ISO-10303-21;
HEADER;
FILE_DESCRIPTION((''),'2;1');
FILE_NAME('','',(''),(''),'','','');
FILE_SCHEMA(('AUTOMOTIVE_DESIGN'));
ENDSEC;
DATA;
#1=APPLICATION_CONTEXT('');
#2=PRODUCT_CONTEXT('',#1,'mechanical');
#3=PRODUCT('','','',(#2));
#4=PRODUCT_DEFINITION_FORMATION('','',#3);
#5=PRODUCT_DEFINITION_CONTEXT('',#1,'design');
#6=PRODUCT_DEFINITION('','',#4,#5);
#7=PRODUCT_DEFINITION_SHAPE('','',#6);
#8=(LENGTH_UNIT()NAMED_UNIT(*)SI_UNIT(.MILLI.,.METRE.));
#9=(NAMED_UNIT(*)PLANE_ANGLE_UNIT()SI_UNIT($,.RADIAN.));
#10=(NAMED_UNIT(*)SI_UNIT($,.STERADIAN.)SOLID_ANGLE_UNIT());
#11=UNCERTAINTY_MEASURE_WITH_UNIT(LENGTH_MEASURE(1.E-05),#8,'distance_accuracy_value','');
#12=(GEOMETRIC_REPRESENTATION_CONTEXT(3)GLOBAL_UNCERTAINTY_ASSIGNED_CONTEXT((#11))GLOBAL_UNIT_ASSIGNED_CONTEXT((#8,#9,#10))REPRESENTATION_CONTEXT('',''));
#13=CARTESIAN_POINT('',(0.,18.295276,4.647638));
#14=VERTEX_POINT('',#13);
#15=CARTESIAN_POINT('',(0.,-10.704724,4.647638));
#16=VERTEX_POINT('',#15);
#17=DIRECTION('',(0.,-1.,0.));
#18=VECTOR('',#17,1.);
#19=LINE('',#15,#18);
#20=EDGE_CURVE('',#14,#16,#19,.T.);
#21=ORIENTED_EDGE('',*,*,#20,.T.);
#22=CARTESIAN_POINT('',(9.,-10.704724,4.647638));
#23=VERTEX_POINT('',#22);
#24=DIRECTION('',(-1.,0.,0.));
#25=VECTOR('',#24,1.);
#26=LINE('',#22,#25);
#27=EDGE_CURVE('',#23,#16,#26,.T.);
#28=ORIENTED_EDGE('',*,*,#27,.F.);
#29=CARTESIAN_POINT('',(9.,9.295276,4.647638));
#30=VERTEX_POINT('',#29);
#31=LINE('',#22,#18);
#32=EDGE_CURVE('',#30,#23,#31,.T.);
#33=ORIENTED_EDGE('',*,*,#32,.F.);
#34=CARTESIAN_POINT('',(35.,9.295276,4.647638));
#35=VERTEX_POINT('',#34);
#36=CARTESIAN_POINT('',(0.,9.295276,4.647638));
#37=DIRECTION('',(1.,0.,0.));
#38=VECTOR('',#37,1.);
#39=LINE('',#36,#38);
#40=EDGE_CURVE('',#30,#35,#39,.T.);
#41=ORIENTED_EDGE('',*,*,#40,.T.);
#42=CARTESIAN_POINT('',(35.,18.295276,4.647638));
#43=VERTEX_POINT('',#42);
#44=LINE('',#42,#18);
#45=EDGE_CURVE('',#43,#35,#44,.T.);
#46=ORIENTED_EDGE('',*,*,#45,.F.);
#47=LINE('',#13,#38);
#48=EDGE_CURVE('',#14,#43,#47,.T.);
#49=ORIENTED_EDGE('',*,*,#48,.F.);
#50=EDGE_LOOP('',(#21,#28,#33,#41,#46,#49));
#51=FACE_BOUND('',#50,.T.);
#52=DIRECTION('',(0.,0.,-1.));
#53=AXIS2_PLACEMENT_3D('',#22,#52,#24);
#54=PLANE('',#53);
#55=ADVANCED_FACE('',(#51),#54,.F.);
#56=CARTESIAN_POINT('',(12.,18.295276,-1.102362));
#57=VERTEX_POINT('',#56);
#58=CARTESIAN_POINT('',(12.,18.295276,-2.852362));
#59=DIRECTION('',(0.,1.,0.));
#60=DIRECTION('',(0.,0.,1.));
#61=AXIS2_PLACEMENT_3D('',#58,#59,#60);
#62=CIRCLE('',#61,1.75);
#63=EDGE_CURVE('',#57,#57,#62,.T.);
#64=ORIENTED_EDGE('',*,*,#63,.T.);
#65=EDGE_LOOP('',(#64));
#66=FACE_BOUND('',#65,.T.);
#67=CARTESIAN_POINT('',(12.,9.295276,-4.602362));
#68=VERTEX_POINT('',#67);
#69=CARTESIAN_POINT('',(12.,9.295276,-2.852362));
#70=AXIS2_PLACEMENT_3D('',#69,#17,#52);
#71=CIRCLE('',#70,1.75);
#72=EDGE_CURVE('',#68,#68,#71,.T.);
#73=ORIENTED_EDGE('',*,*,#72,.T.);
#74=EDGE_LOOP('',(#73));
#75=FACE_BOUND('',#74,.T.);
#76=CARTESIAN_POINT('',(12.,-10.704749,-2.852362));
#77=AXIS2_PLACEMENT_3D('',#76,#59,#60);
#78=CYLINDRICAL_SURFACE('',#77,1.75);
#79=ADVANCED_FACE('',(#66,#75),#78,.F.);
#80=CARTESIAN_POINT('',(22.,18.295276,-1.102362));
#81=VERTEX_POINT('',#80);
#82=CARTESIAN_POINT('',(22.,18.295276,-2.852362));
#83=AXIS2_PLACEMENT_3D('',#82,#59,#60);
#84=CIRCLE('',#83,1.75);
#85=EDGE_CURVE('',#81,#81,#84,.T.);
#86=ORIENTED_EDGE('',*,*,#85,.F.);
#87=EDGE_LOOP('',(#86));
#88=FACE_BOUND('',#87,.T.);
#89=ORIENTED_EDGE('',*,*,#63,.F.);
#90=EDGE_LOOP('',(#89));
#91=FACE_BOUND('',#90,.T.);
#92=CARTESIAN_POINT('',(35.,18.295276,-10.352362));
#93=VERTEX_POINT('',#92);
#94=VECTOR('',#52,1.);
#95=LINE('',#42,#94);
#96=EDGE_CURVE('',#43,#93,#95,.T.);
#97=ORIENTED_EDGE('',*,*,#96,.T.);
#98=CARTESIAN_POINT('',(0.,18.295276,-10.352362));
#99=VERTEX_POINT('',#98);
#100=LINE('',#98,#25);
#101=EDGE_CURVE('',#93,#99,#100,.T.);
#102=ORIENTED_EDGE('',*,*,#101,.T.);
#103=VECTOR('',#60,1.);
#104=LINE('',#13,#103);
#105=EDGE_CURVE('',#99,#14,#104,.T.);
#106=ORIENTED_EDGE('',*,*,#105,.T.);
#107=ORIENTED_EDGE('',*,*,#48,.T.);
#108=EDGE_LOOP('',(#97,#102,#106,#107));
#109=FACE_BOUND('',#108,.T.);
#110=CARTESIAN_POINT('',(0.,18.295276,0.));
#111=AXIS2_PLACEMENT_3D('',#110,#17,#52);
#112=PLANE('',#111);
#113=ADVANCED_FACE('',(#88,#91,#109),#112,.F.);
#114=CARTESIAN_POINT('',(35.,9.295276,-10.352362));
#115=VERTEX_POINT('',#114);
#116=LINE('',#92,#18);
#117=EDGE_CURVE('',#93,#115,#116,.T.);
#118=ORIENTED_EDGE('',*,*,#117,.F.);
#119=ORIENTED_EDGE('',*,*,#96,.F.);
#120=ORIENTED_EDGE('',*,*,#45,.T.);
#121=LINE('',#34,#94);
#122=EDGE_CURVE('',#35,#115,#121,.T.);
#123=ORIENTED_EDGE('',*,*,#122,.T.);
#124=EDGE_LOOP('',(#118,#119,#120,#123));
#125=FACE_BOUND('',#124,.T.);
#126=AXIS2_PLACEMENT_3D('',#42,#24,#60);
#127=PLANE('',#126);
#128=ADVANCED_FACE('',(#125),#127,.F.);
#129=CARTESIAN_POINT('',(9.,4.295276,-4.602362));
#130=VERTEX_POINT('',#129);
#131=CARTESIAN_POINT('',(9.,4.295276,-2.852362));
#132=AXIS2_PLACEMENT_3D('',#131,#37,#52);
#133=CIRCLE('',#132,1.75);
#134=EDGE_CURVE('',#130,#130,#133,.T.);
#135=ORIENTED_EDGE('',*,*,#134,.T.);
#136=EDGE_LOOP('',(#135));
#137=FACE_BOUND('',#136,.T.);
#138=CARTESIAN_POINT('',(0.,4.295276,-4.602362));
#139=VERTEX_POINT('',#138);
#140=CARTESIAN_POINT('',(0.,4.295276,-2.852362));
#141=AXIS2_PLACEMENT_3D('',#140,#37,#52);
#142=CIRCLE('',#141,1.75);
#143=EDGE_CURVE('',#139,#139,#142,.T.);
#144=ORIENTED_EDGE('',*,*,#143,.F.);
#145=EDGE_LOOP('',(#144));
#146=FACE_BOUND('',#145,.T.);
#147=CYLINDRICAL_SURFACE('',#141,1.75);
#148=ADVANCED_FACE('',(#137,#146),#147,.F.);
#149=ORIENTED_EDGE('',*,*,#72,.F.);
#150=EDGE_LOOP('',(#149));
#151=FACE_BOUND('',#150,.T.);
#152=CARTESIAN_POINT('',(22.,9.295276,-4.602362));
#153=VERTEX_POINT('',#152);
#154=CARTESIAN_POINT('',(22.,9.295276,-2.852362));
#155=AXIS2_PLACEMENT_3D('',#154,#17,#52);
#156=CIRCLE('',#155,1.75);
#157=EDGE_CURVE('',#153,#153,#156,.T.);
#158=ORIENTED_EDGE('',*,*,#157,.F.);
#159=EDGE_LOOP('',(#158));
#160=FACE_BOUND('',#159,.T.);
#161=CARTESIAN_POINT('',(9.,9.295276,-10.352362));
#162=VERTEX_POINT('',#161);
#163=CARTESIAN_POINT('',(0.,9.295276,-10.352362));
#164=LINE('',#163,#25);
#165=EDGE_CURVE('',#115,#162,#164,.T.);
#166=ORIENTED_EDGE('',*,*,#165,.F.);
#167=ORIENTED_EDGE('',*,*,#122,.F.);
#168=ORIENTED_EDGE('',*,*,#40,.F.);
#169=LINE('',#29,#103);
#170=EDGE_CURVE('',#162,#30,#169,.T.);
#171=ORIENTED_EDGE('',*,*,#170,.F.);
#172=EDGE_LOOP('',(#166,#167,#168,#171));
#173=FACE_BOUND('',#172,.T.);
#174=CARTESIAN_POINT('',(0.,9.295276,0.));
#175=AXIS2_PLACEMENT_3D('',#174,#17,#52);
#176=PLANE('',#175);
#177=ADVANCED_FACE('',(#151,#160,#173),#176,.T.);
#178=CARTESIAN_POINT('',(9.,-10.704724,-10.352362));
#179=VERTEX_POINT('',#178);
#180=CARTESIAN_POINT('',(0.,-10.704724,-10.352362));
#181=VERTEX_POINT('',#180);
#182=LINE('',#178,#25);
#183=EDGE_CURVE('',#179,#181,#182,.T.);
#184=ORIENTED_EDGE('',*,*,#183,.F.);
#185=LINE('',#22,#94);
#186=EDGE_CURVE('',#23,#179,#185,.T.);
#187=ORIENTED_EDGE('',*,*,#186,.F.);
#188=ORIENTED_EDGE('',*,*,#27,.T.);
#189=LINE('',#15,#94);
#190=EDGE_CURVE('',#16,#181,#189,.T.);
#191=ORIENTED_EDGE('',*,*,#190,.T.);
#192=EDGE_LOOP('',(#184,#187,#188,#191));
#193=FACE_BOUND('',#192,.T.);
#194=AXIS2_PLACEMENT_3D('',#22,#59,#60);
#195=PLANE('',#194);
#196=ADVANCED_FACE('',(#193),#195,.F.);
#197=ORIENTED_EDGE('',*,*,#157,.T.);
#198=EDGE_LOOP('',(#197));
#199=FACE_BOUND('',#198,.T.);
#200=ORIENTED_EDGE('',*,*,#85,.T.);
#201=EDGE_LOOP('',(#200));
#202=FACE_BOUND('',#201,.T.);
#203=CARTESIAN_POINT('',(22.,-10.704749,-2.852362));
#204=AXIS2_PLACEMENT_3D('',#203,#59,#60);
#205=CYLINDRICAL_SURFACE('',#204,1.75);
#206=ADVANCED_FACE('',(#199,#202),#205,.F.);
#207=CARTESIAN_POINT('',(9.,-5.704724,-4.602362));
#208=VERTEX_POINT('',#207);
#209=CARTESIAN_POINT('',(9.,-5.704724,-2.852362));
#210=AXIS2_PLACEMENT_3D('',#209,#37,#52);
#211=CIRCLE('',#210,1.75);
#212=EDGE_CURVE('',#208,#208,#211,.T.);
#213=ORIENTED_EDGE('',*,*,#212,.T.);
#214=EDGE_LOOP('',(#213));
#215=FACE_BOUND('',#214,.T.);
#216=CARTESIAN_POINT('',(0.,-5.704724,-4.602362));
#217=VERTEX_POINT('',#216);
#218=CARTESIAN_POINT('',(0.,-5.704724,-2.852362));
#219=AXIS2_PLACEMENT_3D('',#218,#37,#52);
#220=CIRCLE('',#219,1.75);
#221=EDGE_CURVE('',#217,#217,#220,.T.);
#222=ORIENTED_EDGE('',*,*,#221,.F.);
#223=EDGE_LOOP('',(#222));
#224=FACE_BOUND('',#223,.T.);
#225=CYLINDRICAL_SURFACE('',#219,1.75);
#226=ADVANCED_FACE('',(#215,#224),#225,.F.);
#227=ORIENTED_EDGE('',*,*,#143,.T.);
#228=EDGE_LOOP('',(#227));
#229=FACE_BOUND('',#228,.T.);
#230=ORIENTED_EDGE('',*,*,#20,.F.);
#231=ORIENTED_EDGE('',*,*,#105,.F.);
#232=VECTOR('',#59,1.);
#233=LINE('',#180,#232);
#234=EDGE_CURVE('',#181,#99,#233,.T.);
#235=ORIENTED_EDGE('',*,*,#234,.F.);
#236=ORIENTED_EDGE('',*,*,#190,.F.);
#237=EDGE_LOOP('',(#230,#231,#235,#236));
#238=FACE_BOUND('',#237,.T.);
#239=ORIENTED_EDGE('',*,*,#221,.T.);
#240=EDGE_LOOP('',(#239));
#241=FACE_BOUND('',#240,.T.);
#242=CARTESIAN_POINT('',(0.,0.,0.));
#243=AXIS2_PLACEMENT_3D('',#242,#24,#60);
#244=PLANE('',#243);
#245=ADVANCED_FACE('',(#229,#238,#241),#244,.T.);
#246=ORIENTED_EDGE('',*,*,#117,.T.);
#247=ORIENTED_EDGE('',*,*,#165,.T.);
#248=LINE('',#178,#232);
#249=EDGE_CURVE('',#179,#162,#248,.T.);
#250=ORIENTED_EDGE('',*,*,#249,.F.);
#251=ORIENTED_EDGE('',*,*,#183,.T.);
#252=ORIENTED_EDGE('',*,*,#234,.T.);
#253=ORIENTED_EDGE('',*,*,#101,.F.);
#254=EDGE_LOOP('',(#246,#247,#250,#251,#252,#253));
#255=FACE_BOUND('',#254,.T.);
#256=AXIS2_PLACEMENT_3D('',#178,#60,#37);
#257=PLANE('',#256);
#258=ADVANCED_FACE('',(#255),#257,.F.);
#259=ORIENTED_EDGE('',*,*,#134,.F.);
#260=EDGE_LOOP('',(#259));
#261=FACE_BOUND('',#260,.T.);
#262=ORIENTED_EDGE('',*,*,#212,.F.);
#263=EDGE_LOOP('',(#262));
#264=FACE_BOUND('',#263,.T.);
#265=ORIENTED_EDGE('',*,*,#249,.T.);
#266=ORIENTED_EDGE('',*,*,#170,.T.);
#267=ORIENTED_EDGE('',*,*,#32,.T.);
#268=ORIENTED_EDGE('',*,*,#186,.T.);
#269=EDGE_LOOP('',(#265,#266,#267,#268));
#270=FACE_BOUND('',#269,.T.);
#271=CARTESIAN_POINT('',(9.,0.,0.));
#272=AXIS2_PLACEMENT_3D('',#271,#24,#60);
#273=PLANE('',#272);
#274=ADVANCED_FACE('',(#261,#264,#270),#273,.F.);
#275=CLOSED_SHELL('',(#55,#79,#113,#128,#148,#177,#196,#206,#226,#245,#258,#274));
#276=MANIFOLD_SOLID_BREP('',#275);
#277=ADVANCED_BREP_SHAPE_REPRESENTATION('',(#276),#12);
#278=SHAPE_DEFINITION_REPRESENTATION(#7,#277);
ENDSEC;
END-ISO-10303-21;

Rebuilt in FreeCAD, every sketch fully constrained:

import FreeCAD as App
import Part
import Sketcher
Q = App.Units.Quantity

doc = App.newDocument("Part")
body = doc.addObject("PartDesign::Body", "Body")

sketch1 = doc.addObject("Sketcher::SketchObject", "Sketch")
body.addObject(sketch1)
sketch1.AttachmentSupport = (doc.YZ_Plane, [""])
sketch1.MapMode = "FlatFace"
sketch1.addGeometry([
    Part.LineSegment(App.Vector(9, 5, 0), App.Vector(-11, 5, 0)),
    Part.LineSegment(App.Vector(-11, 5, 0), App.Vector(-11, -10, 0)),
    Part.LineSegment(App.Vector(-11, -10, 0), App.Vector(9, -10, 0)),
    Part.LineSegment(App.Vector(9, -10, 0), App.Vector(9, 5, 0)),
], False)
sketch1.addConstraint([
    Sketcher.Constraint("Coincident", 0, 2, 1, 1),
    Sketcher.Constraint("Coincident", 1, 2, 2, 1),
    Sketcher.Constraint("Coincident", 2, 2, 3, 1),
    Sketcher.Constraint("Coincident", 3, 2, 0, 1),
    Sketcher.Constraint("Horizontal", 0),
    Sketcher.Constraint("Vertical", 1),
    Sketcher.Constraint("Horizontal", 2),
    Sketcher.Constraint("Vertical", 3),
    Sketcher.Constraint("DistanceX", 0, 2, 0, 1, Q("20 mm")),
    Sketcher.Constraint("DistanceY", 1, 2, 1, 1, Q("15 mm")),
    Sketcher.Constraint("DistanceY", -1, 1, 0, 2, Q("4.647638 mm")),
    Sketcher.Constraint("DistanceX", 0, 2, -1, 1, Q("10.704724 mm")),
])
pad1 = doc.addObject("PartDesign::Pad", "Pad")
body.addObject(pad1)
pad1.Profile = sketch1
pad1.Length = 9

sketch2 = doc.addObject("Sketcher::SketchObject", "Sketch001")
body.addObject(sketch2)
sketch2.AttachmentSupport = (doc.YZ_Plane, [""])
sketch2.MapMode = "FlatFace"
sketch2.AttachmentOffset = App.Placement(App.Vector(0, 0, 9), App.Rotation())
sketch2.addGeometry([
    Part.Circle(App.Vector(-5.7, -2.9, 0), App.Vector(0, 0, 1), 1.8),
    Part.Circle(App.Vector(4.3, -2.9, 0), App.Vector(0, 0, 1), 1.8),
], False)
sketch2.addConstraint([
    Sketcher.Constraint("Equal", 0, 1),
    Sketcher.Constraint("Horizontal", 0, 3, 1, 3),
    Sketcher.Constraint("Diameter", 0, Q("3.5 mm")),
    Sketcher.Constraint("DistanceX", 0, 3, 1, 3, Q("10 mm")),
    Sketcher.Constraint("DistanceY", 0, 3, -1, 1, Q("2.852362 mm")),
    Sketcher.Constraint("DistanceX", 0, 3, -1, 1, Q("5.704724 mm")),
])
pocket1 = doc.addObject("PartDesign::Pocket", "Pocket")
body.addObject(pocket1)
pocket1.Profile = sketch2
pocket1.Type = "ThroughAll"

sketch3 = doc.addObject("Sketcher::SketchObject", "Sketch002")
body.addObject(sketch3)
sketch3.AttachmentSupport = (doc.XZ_Plane, [""])
sketch3.MapMode = "FlatFace"
sketch3.AttachmentOffset = App.Placement(App.Vector(0, 0, -9.295276), App.Rotation())
sketch3.addGeometry([
    Part.LineSegment(App.Vector(0, -10, 0), App.Vector(0, 5, 0)),
    Part.LineSegment(App.Vector(0, 5, 0), App.Vector(35, 5, 0)),
    Part.LineSegment(App.Vector(35, 5, 0), App.Vector(35, -10, 0)),
    Part.LineSegment(App.Vector(35, -10, 0), App.Vector(0, -10, 0)),
], False)
sketch3.addConstraint([
    Sketcher.Constraint("Coincident", 0, 2, 1, 1),
    Sketcher.Constraint("Coincident", 1, 2, 2, 1),
    Sketcher.Constraint("Coincident", 2, 2, 3, 1),
    Sketcher.Constraint("Coincident", 3, 2, 0, 1),
    Sketcher.Constraint("Vertical", 0),
    Sketcher.Constraint("Horizontal", 1),
    Sketcher.Constraint("Vertical", 2),
    Sketcher.Constraint("Horizontal", 3),
    Sketcher.Constraint("PointOnObject", 0, 2, -2),
    Sketcher.Constraint("DistanceX", 1, 1, 1, 2, Q("35 mm")),
    Sketcher.Constraint("DistanceY", 0, 1, 0, 2, Q("15 mm")),
    Sketcher.Constraint("DistanceY", -1, 1, 0, 2, Q("4.647638 mm")),
])
pad2 = doc.addObject("PartDesign::Pad", "Pad001")
body.addObject(pad2)
pad2.Profile = sketch3
pad2.Length = 9
pad2.Reversed = True

sketch4 = doc.addObject("Sketcher::SketchObject", "Sketch003")
body.addObject(sketch4)
sketch4.AttachmentSupport = (doc.XZ_Plane, [""])
sketch4.MapMode = "FlatFace"
sketch4.AttachmentOffset = App.Placement(App.Vector(0, 0, -18.295276), App.Rotation())
sketch4.addGeometry([
    Part.Circle(App.Vector(12, -2.9, 0), App.Vector(0, 0, 1), 1.8),
    Part.Circle(App.Vector(22, -2.9, 0), App.Vector(0, 0, 1), 1.8),
], False)
sketch4.addConstraint([
    Sketcher.Constraint("Equal", 0, 1),
    Sketcher.Constraint("Horizontal", 0, 3, 1, 3),
    Sketcher.Constraint("Diameter", 0, Q("3.5 mm")),
    Sketcher.Constraint("DistanceX", -1, 1, 0, 3, Q("12 mm")),
    Sketcher.Constraint("DistanceX", -1, 1, 1, 3, Q("22 mm")),
    Sketcher.Constraint("DistanceY", 0, 3, -1, 1, Q("2.852362 mm")),
])
pocket2 = doc.addObject("PartDesign::Pocket", "Pocket001")
body.addObject(pocket2)
pocket2.Profile = sketch4
pocket2.Type = "ThroughAll"
pocket2.Reversed = True

doc.recompute()
